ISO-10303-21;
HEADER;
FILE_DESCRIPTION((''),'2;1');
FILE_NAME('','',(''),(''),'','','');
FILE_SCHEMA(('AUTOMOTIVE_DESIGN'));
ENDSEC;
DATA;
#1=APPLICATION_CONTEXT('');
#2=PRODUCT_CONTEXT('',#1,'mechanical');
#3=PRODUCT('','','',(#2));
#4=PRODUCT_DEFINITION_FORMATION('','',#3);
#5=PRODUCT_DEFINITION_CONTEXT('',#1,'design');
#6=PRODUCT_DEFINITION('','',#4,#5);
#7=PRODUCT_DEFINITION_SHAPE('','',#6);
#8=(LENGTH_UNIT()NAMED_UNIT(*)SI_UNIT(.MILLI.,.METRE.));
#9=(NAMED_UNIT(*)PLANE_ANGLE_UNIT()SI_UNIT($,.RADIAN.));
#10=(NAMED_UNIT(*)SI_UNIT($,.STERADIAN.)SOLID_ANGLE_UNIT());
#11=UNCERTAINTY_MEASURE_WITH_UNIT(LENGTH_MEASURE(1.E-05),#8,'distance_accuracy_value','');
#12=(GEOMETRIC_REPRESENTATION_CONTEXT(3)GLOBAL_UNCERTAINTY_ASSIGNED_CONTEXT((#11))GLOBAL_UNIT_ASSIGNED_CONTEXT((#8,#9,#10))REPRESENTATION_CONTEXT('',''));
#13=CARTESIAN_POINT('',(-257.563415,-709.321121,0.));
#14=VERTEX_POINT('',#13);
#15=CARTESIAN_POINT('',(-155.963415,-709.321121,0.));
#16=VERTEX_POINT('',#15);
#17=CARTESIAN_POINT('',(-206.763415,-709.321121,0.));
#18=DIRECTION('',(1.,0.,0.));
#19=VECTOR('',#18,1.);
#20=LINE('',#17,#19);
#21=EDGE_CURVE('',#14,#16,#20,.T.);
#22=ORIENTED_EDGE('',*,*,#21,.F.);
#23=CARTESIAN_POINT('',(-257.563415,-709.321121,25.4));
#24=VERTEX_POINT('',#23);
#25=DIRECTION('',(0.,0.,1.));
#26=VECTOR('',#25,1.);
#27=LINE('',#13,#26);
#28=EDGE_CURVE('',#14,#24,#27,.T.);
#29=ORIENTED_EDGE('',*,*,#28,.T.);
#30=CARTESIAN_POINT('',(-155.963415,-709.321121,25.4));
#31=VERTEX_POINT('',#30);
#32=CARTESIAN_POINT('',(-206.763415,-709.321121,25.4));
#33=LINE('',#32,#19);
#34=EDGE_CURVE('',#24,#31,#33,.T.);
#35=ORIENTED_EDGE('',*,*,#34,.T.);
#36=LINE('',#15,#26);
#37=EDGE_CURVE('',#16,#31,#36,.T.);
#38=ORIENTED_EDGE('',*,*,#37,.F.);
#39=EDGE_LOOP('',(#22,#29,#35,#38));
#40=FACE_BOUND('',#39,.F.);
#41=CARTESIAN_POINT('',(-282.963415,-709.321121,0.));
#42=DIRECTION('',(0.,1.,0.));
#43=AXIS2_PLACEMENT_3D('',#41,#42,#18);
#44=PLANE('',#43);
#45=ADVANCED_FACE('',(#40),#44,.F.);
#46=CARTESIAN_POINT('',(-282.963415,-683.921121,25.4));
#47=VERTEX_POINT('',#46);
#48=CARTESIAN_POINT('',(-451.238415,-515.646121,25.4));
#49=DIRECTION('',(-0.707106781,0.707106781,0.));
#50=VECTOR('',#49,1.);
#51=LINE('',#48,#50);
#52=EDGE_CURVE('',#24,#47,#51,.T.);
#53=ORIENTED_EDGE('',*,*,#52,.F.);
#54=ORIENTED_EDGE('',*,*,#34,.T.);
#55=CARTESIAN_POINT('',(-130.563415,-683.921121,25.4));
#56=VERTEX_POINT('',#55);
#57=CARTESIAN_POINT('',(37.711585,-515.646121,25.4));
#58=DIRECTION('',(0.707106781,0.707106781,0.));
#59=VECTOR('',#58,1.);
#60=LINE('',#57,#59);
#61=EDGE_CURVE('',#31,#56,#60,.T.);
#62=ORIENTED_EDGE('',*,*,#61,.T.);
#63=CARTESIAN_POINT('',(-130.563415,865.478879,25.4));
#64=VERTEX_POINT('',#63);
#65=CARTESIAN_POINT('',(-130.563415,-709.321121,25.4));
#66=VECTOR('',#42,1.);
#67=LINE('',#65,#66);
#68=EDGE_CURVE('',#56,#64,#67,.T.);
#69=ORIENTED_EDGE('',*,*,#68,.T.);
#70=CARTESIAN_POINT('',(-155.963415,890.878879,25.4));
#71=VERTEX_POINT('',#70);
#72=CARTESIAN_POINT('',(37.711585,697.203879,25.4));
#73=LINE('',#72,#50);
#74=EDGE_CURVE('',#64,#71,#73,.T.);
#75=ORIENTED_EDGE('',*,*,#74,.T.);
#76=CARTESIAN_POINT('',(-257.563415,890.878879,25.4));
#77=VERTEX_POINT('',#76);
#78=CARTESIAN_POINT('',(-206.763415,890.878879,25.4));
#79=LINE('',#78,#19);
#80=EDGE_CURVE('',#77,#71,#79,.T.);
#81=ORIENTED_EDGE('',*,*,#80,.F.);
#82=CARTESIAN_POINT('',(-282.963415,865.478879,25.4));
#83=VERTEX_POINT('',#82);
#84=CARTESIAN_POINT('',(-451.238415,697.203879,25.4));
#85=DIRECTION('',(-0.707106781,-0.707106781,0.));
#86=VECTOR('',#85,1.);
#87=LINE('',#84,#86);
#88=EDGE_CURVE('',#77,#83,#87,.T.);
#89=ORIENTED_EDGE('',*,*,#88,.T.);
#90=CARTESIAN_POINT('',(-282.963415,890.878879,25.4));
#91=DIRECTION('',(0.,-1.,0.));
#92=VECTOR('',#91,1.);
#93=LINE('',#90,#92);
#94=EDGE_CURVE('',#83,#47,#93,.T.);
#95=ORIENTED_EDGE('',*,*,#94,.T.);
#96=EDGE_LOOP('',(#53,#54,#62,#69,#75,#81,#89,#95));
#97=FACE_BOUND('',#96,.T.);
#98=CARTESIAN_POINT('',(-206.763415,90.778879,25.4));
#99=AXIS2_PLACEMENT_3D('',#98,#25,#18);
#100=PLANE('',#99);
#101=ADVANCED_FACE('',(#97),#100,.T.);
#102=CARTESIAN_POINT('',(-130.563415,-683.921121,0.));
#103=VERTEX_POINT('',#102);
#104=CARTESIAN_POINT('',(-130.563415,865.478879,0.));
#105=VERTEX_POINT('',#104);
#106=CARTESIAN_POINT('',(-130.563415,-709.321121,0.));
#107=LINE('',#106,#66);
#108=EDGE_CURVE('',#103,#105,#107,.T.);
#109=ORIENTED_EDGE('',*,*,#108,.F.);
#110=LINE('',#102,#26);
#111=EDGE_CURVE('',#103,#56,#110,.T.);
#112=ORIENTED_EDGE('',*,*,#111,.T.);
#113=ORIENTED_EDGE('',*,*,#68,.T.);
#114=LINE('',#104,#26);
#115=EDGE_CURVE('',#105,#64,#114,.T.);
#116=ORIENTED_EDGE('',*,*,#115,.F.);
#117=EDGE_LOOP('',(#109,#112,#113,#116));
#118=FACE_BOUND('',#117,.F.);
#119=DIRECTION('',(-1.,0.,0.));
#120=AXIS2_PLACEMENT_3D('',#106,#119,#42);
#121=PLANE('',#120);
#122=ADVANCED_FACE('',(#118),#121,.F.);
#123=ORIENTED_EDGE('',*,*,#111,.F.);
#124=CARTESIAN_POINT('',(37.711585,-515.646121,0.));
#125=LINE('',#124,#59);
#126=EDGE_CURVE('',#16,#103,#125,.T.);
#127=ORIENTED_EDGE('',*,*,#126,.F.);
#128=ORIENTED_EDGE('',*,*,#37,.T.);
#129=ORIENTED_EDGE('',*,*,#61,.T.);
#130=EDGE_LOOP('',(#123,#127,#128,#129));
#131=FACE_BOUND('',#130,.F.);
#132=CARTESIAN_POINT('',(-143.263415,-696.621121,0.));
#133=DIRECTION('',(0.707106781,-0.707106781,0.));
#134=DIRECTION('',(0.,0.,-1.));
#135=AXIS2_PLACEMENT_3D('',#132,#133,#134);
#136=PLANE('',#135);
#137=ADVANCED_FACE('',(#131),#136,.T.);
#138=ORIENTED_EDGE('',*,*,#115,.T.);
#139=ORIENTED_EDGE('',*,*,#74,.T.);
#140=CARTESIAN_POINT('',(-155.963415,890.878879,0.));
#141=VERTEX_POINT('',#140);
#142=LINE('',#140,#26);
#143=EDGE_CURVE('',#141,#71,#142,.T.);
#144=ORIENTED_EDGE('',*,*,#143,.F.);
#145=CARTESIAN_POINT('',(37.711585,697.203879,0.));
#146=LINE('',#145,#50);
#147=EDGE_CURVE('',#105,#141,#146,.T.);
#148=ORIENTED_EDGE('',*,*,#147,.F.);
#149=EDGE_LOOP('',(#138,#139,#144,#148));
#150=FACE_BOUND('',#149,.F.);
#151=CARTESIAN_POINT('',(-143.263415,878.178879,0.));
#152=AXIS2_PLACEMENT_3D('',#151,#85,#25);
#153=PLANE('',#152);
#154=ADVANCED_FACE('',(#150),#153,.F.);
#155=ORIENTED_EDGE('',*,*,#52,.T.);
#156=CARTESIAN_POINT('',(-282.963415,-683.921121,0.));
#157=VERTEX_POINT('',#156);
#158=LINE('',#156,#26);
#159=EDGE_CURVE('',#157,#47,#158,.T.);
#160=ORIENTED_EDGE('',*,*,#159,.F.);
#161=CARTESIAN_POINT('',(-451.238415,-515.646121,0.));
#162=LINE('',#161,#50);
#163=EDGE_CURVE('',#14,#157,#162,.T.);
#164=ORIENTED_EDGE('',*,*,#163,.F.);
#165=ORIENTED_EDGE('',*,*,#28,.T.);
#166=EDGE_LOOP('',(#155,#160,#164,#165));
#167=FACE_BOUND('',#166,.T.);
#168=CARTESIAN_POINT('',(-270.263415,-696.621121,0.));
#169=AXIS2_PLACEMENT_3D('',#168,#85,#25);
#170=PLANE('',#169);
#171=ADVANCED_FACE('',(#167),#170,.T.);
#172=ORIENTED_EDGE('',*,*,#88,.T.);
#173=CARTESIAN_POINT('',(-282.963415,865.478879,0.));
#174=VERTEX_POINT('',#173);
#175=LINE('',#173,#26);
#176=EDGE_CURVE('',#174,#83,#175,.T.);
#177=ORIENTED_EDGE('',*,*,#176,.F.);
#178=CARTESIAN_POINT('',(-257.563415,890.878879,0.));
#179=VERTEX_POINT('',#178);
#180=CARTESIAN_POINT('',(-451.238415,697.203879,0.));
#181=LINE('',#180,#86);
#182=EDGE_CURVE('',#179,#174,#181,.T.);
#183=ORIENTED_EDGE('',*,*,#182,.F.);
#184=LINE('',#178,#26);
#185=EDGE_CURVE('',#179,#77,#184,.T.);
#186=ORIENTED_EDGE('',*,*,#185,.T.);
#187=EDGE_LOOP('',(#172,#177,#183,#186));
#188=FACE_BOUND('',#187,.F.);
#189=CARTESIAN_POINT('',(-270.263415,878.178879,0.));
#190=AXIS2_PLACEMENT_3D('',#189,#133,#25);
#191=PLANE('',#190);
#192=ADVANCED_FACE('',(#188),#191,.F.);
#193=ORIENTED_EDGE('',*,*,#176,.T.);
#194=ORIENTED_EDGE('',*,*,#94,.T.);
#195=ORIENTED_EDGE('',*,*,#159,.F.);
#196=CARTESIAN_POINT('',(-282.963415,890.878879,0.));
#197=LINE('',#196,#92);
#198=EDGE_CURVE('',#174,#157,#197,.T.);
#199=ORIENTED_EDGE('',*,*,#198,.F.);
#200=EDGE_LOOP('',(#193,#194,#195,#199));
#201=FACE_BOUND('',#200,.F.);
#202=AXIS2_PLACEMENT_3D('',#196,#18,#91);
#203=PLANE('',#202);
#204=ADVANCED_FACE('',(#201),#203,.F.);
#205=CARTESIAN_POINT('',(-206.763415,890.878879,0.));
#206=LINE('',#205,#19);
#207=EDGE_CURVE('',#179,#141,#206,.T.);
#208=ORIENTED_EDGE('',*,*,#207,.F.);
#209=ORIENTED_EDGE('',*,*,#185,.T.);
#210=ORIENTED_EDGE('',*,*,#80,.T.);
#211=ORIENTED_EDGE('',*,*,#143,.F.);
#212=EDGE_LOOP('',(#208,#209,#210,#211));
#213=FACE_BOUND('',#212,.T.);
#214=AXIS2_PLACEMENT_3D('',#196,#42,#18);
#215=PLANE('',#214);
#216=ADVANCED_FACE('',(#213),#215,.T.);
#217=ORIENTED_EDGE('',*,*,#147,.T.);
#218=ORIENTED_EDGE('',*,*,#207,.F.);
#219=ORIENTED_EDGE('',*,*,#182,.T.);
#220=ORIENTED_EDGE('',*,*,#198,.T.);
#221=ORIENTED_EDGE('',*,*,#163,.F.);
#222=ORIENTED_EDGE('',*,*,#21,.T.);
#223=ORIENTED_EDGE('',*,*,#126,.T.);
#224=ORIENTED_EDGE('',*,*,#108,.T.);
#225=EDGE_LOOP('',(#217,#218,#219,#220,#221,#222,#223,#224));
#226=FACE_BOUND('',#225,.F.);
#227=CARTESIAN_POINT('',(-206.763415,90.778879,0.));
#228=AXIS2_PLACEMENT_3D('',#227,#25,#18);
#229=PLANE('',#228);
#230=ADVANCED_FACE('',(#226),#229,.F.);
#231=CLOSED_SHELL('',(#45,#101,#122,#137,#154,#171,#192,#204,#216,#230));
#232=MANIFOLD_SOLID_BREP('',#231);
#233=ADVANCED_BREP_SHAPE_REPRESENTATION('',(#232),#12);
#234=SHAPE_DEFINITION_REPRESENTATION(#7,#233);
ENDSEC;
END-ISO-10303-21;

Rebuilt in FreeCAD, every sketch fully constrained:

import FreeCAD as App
import Part
import Sketcher

V = App.Vector
Q = App.Units.Quantity


def edges_at(feature, points):
    """Names of the edges that pass closest to the given points."""
    edges = feature.Shape.Edges
    near = lambda p: min(range(len(edges)), key=lambda i: edges[i].distToShape(Part.Vertex(*p))[0])
    return sorted({f"Edge{near(p) + 1}" for p in points})


def add_polygon(sketch, points):
    """Adds a closed chain of lines whose ends are joined by coincident constraints."""
    first, n = sketch.GeometryCount, len(points)
    for a, b in zip(points, points[1:] + points[:1]):
        sketch.addGeometry(Part.LineSegment(App.Vector(*a, 0), App.Vector(*b, 0)), False)
    for i in range(n):
        sketch.addConstraint(Sketcher.Constraint("Coincident", first + i, 2, first + (i + 1) % n, 1))

doc = App.newDocument("Part")
body = doc.addObject("PartDesign::Body", "Body")

sketch1 = body.newObject("Sketcher::SketchObject", "Sketch")
sketch1.AttachmentSupport = (doc.getObject("XY_Plane"), [""])
sketch1.MapMode = "FlatFace"
add_polygon(sketch1, [(-283, -709), (-131, -709), (-131, 891), (-283, 891)])
sketch1.addConstraint(Sketcher.Constraint("Horizontal", 0))
sketch1.addConstraint(Sketcher.Constraint("Vertical", 1))
sketch1.addConstraint(Sketcher.Constraint("Horizontal", 2))
sketch1.addConstraint(Sketcher.Constraint("Vertical", 3))
sketch1.addConstraint(Sketcher.Constraint("DistanceX", 0, 1, 0, 2, Q("6 in")))
sketch1.addConstraint(Sketcher.Constraint("DistanceY", 1, 1, 1, 2, Q("63 in")))
sketch1.addConstraint(Sketcher.Constraint("DistanceY", 0, 2, -1, 1, 709.321121))
sketch1.addConstraint(Sketcher.Constraint("DistanceX", 0, 2, -1, 1, 130.563415))
pad1 = body.newObject("PartDesign::Pad", "Pad")
pad1.Profile = sketch1
pad1.Length = Q("1 in")
doc.recompute()

chamfer = body.newObject("PartDesign::Chamfer", "Chamfer")
chamfer.Base = (pad1, edges_at(pad1, [
    (-130.563, -709.321, 12.7),
    (-282.963, -709.321, 12.7),
    (-130.563, 890.879, 12.7),
    (-282.963, 890.879, 12.7),
]))
chamfer.Size = Q("1 in")

doc.recompute()
